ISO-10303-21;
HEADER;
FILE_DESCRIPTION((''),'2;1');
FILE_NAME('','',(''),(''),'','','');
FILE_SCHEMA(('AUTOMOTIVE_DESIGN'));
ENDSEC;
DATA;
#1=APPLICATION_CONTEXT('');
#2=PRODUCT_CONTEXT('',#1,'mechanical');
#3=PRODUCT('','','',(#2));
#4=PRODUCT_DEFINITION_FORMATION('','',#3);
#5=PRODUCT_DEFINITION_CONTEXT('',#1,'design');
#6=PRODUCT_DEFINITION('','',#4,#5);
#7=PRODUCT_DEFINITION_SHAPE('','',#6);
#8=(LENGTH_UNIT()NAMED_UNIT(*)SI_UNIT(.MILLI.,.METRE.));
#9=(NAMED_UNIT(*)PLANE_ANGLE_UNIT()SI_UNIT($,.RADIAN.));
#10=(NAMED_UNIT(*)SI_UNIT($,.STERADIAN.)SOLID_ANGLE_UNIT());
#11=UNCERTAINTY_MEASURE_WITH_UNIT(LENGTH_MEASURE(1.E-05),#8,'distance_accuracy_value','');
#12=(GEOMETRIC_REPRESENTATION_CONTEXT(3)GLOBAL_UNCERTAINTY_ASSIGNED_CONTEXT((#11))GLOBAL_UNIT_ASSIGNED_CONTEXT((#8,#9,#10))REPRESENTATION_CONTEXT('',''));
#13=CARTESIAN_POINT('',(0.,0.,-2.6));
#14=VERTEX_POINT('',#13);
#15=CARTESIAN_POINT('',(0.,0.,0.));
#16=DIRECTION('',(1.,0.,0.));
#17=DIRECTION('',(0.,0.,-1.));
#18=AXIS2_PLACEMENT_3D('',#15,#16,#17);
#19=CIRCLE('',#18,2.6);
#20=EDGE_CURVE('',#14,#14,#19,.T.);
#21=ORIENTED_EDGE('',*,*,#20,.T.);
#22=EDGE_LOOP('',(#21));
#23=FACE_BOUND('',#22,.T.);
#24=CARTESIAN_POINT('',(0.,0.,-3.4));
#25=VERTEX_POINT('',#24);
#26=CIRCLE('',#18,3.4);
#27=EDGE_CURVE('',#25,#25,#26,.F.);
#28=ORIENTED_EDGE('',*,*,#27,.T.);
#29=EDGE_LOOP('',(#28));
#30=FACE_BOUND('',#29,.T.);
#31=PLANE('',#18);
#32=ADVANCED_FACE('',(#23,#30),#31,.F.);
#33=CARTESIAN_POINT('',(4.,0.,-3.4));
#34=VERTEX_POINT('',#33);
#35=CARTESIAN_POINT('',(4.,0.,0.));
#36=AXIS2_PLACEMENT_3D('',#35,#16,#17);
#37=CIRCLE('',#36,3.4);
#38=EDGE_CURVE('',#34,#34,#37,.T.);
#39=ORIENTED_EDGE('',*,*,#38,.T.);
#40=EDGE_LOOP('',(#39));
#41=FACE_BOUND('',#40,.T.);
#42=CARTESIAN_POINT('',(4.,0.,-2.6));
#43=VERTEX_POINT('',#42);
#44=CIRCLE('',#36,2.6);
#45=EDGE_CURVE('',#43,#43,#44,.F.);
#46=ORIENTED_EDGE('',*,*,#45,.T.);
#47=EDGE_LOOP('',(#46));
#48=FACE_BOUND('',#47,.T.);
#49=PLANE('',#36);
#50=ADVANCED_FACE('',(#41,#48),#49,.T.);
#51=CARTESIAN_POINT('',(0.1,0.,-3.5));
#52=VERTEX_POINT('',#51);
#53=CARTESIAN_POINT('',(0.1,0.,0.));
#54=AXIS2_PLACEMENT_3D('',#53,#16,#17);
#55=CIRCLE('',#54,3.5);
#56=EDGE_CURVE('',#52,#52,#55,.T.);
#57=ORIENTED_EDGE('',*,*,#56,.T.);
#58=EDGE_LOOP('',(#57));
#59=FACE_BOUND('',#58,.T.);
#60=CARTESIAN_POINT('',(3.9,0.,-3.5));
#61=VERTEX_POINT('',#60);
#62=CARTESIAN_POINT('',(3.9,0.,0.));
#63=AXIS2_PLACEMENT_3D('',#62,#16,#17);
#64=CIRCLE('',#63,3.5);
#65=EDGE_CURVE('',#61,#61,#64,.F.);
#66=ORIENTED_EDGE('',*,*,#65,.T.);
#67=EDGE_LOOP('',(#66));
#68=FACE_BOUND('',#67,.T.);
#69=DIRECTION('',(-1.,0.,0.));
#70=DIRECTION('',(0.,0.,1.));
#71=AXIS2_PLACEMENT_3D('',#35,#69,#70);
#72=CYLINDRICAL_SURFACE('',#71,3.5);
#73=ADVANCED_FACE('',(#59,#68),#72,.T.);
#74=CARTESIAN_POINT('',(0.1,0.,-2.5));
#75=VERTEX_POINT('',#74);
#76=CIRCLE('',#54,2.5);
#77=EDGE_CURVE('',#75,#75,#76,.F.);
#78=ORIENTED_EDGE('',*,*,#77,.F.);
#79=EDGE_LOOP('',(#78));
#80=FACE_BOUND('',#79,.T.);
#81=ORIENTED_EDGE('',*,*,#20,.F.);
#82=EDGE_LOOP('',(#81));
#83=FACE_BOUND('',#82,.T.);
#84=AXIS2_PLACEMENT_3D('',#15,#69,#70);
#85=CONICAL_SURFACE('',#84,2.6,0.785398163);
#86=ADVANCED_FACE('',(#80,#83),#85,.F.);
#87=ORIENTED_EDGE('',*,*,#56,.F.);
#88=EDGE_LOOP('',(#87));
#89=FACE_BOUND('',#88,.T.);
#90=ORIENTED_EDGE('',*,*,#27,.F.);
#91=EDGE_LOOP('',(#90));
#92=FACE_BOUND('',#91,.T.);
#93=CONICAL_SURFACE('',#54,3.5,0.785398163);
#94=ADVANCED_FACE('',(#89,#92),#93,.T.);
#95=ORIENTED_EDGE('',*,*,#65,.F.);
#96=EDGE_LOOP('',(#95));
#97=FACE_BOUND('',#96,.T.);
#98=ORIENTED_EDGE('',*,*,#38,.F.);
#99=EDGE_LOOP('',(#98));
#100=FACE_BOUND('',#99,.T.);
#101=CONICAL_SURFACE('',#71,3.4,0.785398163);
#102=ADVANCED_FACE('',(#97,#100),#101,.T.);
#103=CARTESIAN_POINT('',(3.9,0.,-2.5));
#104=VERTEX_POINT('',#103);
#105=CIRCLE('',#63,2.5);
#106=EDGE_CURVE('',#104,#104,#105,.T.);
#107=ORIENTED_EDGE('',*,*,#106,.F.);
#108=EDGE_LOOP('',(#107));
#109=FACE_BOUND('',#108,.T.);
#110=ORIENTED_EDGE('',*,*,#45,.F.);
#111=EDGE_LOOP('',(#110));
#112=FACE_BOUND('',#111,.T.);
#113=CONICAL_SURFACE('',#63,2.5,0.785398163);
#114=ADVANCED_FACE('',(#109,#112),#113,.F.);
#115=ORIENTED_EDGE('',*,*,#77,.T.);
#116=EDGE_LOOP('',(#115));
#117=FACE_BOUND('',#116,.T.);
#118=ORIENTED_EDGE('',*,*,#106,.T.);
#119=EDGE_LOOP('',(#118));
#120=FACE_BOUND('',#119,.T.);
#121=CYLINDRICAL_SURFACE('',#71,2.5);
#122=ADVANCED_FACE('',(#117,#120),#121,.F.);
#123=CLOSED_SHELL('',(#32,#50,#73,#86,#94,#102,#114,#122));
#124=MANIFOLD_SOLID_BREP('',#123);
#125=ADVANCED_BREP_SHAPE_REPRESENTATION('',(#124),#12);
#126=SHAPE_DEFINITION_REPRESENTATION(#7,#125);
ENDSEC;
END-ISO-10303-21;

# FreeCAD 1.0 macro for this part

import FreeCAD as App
import Part
import Sketcher
from FreeCAD import Vector


def edges_at(feature, points):
    """Names of the edges that pass closest to the given points."""
    edges = feature.Shape.Edges
    near = lambda p: min(range(len(edges)), key=lambda i: edges[i].distToShape(Part.Vertex(*p))[0])
    return sorted({f"Edge{near(p) + 1}" for p in points})

doc = App.newDocument("Part")
body = doc.addObject("PartDesign::Body", "Body")

sketch1 = doc.addObject("Sketcher::SketchObject", "Sketch")
body.addObject(sketch1)
sketch1.AttachmentSupport = (doc.YZ_Plane, [""])
sketch1.MapMode = "FlatFace"
sketch1.addGeometry(Part.Circle(Vector(0, 0, 0), Vector(0, 0, 1), 3.5), False)
sketch1.addGeometry(Part.Circle(Vector(0, 0, 0), Vector(0, 0, 1), 2.5), False)
sketch1.addConstraint(Sketcher.Constraint("Coincident", 0, 3, -1, 1))
sketch1.addConstraint(Sketcher.Constraint("Coincident", 1, 3, -1, 1))
sketch1.addConstraint(Sketcher.Constraint("Diameter", 0, 7.0))
sketch1.addConstraint(Sketcher.Constraint("Diameter", 1, 5.0))
pad1 = doc.addObject("PartDesign::Pad", "Pad")
body.addObject(pad1)
pad1.Profile = sketch1
pad1.Length = 4
doc.recompute()

chamfer = doc.addObject("PartDesign::Chamfer", "Chamfer")
body.addObject(chamfer)
chamfer.Base = (pad1, edges_at(pad1, [
    (0, 0, 3.5),
    (4, 0, 3.5),
    (0, 0, 2.5),
    (4, 0, 2.5),
]))
chamfer.Size = 0.1

doc.recompute()
